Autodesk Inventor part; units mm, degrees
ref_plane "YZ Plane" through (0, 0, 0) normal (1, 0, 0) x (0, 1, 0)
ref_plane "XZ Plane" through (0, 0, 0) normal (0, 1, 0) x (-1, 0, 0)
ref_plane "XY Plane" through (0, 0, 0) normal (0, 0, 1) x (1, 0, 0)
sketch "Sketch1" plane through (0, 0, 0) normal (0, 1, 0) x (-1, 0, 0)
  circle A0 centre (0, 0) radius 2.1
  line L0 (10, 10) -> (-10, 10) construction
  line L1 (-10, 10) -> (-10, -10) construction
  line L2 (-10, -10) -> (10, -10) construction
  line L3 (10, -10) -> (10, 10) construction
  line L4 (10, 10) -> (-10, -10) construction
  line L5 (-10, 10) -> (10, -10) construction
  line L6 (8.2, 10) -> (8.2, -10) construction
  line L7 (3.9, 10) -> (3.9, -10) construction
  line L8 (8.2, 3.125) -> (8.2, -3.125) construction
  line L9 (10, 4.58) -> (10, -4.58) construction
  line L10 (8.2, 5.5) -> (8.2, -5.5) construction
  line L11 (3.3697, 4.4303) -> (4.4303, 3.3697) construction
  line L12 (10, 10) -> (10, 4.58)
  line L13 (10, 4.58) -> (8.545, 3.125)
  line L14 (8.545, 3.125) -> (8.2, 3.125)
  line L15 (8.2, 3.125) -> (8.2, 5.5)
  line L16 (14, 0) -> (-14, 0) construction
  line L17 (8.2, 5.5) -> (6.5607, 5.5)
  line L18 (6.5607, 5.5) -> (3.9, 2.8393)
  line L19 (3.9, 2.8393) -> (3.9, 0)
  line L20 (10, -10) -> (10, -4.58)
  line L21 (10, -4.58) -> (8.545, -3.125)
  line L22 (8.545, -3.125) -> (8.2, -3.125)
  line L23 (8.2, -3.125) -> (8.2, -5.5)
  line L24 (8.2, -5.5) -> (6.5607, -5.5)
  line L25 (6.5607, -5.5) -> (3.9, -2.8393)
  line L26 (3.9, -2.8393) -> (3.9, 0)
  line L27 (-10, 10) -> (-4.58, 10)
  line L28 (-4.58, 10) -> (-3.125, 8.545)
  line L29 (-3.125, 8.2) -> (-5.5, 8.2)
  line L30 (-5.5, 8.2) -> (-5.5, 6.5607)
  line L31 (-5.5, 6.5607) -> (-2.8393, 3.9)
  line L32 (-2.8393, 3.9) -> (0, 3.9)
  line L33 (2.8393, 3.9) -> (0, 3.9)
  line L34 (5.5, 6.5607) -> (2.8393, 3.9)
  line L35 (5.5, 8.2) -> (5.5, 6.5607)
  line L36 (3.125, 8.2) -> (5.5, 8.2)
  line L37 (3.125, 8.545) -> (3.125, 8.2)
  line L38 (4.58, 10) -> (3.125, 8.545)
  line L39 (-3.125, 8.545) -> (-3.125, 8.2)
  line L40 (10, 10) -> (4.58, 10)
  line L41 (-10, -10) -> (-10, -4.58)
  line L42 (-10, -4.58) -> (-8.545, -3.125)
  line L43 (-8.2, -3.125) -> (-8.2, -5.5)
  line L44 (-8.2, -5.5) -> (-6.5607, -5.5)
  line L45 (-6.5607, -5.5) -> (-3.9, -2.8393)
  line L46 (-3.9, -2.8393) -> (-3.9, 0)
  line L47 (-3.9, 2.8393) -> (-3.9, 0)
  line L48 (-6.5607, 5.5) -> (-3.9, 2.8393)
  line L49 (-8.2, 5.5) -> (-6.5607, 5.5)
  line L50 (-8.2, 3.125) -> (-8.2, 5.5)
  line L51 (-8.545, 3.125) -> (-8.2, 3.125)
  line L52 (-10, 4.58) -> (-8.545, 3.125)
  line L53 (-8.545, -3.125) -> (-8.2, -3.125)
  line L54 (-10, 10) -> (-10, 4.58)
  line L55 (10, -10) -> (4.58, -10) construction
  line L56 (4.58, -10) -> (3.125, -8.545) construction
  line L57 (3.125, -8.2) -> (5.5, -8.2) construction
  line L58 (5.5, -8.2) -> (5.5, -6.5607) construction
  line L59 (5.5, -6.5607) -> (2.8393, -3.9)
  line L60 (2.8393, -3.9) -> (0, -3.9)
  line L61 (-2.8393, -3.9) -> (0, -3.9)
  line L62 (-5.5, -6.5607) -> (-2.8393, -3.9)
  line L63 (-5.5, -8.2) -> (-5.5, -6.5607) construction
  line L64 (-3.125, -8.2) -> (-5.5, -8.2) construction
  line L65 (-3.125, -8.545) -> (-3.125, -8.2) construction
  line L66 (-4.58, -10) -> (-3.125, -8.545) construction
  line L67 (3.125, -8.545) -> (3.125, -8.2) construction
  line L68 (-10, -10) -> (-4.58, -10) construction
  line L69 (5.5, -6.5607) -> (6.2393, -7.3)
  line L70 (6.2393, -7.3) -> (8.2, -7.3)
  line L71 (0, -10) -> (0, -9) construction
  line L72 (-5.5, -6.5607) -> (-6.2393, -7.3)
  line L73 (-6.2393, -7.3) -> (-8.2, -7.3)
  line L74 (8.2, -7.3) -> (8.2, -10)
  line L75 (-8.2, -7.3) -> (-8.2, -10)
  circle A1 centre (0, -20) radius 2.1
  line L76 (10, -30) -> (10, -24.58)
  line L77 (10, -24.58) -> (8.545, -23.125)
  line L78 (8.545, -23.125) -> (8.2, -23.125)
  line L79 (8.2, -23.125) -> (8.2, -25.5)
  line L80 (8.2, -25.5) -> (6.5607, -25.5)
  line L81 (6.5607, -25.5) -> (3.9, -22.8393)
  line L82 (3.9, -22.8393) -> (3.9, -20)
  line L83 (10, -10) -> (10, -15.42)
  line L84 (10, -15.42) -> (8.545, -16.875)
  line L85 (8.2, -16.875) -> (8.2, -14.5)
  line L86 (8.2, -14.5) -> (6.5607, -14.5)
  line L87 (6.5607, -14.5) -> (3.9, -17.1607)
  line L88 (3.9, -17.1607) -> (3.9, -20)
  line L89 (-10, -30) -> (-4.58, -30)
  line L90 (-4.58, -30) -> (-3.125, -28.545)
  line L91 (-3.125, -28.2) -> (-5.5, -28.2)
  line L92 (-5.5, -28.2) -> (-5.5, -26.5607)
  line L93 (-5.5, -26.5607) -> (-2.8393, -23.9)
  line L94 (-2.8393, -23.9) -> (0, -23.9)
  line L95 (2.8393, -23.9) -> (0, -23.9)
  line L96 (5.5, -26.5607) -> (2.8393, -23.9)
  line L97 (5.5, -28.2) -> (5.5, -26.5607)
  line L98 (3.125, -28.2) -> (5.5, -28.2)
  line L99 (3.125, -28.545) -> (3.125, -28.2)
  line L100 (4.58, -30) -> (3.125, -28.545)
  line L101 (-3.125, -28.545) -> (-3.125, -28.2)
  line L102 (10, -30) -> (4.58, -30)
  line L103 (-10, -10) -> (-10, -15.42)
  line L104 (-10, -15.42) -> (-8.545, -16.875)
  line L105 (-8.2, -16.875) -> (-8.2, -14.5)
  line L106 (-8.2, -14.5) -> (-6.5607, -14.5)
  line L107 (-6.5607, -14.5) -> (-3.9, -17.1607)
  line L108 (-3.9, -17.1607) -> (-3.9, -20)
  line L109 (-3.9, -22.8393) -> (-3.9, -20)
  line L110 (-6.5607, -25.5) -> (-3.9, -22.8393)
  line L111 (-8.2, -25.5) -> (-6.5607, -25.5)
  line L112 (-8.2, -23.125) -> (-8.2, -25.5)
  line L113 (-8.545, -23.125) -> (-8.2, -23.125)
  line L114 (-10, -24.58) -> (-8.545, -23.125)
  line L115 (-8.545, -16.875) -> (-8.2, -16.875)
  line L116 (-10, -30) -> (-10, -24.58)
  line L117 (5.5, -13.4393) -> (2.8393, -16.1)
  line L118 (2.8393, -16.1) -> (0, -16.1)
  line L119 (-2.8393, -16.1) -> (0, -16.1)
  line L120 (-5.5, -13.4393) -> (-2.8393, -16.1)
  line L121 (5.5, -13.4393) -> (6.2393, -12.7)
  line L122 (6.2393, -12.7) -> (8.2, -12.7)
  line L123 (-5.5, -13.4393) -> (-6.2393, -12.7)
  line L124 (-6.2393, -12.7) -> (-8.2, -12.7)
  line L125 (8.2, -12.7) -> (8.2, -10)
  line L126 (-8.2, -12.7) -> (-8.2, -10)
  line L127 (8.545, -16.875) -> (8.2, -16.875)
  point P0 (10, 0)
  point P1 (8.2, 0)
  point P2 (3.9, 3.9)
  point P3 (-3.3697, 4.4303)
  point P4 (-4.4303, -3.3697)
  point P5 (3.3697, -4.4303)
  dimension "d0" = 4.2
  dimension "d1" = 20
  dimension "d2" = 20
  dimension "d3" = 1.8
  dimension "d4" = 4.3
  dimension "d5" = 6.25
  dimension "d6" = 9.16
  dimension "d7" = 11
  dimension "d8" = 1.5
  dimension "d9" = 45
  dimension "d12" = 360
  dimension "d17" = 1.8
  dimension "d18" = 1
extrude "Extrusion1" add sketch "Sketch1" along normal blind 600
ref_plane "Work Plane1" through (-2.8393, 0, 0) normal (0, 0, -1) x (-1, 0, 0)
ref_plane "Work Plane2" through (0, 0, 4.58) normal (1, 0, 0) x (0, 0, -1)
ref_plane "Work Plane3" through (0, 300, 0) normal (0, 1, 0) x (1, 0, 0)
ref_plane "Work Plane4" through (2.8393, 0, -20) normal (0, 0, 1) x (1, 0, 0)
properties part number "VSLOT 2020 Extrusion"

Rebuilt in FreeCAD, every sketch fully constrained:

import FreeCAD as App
import Part
import Sketcher
Q = App.Units.Quantity


def add_polygon(sketch, points):
    """Adds a closed chain of lines whose ends are joined by coincident constraints."""
    first, n = sketch.GeometryCount, len(points)
    for a, b in zip(points, points[1:] + points[:1]):
        sketch.addGeometry(Part.LineSegment(App.Vector(*a, 0), App.Vector(*b, 0)), False)
    for i in range(n):
        sketch.addConstraint(Sketcher.Constraint("Coincident", first + i, 2, first + (i + 1) % n, 1))

doc = App.newDocument("Part")
params = doc.addObject("Spreadsheet::Sheet", "Params")
for row, (alias, value) in enumerate([
    ("sketch1_diameter", "4.2 mm"),
    ("sketch1_height", "5.4 mm"),
    ("sketch1_width", "5.42 mm"),
    ("pad1_length", "600 mm"),
], start=1):
    params.set(f"A{row}", alias)
    params.set(f"B{row}", "=" + value)
    params.setAlias(f"B{row}", alias)

body = doc.addObject("PartDesign::Body", "Body")

# Sketch on XZ plane
sketch1 = doc.addObject("Sketcher::SketchObject", "Sketch")
body.addObject(sketch1)
sketch1.AttachmentSupport = (doc.XZ_Plane, [""])
sketch1.MapMode = "FlatFace"
add_polygon(sketch1, [(-10, 4.58), (-10, 10), (-4.58, 10), (-3.12, 8.54), (-3.12, 8.2), (-5.5, 8.2), (-5.5, 6.56), (-2.84, 3.9), (2.84, 3.9), (5.5, 6.56), (5.5, 8.2), (3.12, 8.2), (3.12, 8.54), (4.58, 10), (10, 10), (10, 4.58), (8.54, 3.12), (8.2, 3.12), (8.2, 5.5), (6.56, 5.5), (3.9, 2.84), (3.9, -2.84), (6.56, -5.5), (8.2, -5.5), (8.2, -3.12), (8.54, -3.12), (10, -4.58), (10, -15.42), (8.54, -16.88), (8.2, -16.88), (8.2, -14.5), (6.56, -14.5), (3.9, -17.16), (3.9, -22.84), (6.56, -25.5), (8.2, -25.5), (8.2, -23.12), (8.54, -23.12), (10, -24.58), (10, -30), (4.58, -30), (3.12, -28.55), (3.12, -28.2), (5.5, -28.2), (5.5, -26.56), (2.84, -23.9), (-2.84, -23.9), (-5.5, -26.56), (-5.5, -28.2), (-3.12, -28.2), (-3.12, -28.55), (-4.58, -30), (-10, -30), (-10, -24.58), (-8.54, -23.12), (-8.2, -23.12), (-8.2, -25.5), (-6.56, -25.5), (-3.9, -22.84), (-3.9, -17.16), (-6.56, -14.5), (-8.2, -14.5), (-8.2, -16.88), (-8.54, -16.88), (-10, -15.42), (-10, -4.58), (-8.54, -3.12), (-8.2, -3.12), (-8.2, -5.5), (-6.56, -5.5), (-3.9, -2.84), (-3.9, 2.84), (-6.56, 5.5), (-8.2, 5.5), (-8.2, 3.12), (-8.54, 3.12)])  # lines 0-75
sketch1.addGeometry(Part.Circle(App.Vector(0, -20, 0), App.Vector(0, 0, 1), 2.1), False)  # 76
add_polygon(sketch1, [(-2.84, -3.9), (-6.24, -7.3), (-8.2, -7.3), (-8.2, -12.7), (-6.24, -12.7), (-2.84, -16.1), (2.84, -16.1), (6.24, -12.7), (8.2, -12.7), (8.2, -7.3), (6.24, -7.3), (2.84, -3.9)])  # lines 77-88
sketch1.addGeometry(Part.Circle(App.Vector(0, 0, 0), App.Vector(0, 0, 1), 2.1), False)  # 89
sketch1.addConstraint([
    Sketcher.Constraint("Vertical", 0),
    Sketcher.Constraint("Horizontal", 1),
    Sketcher.Constraint("Vertical", 3),
    Sketcher.Constraint("Horizontal", 4),
    Sketcher.Constraint("Vertical", 5),
    Sketcher.Constraint("Horizontal", 7),
    Sketcher.Constraint("Vertical", 9),
    Sketcher.Constraint("Horizontal", 10),
    Sketcher.Constraint("Vertical", 11),
    Sketcher.Constraint("Horizontal", 13),
    Sketcher.Constraint("Vertical", 14),
    Sketcher.Constraint("Horizontal", 16),
    Sketcher.Constraint("Vertical", 17),
    Sketcher.Constraint("Horizontal", 18),
    Sketcher.Constraint("Vertical", 20),
    Sketcher.Constraint("Horizontal", 22),
    Sketcher.Constraint("Vertical", 23),
    Sketcher.Constraint("Horizontal", 24),
    Sketcher.Constraint("Vertical", 26),
    Sketcher.Constraint("Horizontal", 28),
    Sketcher.Constraint("Vertical", 29),
    Sketcher.Constraint("Horizontal", 30),
    Sketcher.Constraint("Vertical", 32),
    Sketcher.Constraint("Horizontal", 34),
    Sketcher.Constraint("Vertical", 35),
    Sketcher.Constraint("Horizontal", 36),
    Sketcher.Constraint("Vertical", 38),
    Sketcher.Constraint("Horizontal", 39),
    Sketcher.Constraint("Vertical", 41),
    Sketcher.Constraint("Horizontal", 42),
    Sketcher.Constraint("Vertical", 43),
    Sketcher.Constraint("Horizontal", 45),
    Sketcher.Constraint("Vertical", 47),
    Sketcher.Constraint("Horizontal", 48),
    Sketcher.Constraint("Vertical", 49),
    Sketcher.Constraint("Horizontal", 51),
    Sketcher.Constraint("Vertical", 52),
    Sketcher.Constraint("Horizontal", 54),
    Sketcher.Constraint("Vertical", 55),
    Sketcher.Constraint("Horizontal", 56),
    Sketcher.Constraint("Vertical", 58),
    Sketcher.Constraint("Horizontal", 60),
    Sketcher.Constraint("Vertical", 61),
    Sketcher.Constraint("Horizontal", 62),
    Sketcher.Constraint("Vertical", 64),
    Sketcher.Constraint("Horizontal", 66),
    Sketcher.Constraint("Vertical", 67),
    Sketcher.Constraint("Horizontal", 68),
    Sketcher.Constraint("Vertical", 70),
    Sketcher.Constraint("Horizontal", 72),
    Sketcher.Constraint("Vertical", 73),
    Sketcher.Constraint("Horizontal", 74),
    Sketcher.Constraint("Horizontal", 78),
    Sketcher.Constraint("Vertical", 79),
    Sketcher.Constraint("Horizontal", 80),
    Sketcher.Constraint("Horizontal", 82),
    Sketcher.Constraint("Horizontal", 84),
    Sketcher.Constraint("Vertical", 85),
    Sketcher.Constraint("Horizontal", 86),
    Sketcher.Constraint("Horizontal", 88),
    Sketcher.Constraint("Coincident", 89, 3, -1, 1),
    Sketcher.Constraint("Equal", 76, 89),
    Sketcher.Constraint("Symmetric", 14, 2, 64, 2, -1, 1),
    Sketcher.Constraint("Symmetric", 15, 2, 65, 2, -1, 1),
    Sketcher.Constraint("Symmetric", 17, 2, 67, 2, -1, 1),
    Sketcher.Constraint("Symmetric", 19, 2, 69, 2, -1, 1),
    Sketcher.Constraint("Symmetric", 21, 2, 71, 2, -1, 1),
    Sketcher.Constraint("Symmetric", 23, 2, 73, 2, -1, 1),
    Sketcher.Constraint("Symmetric", 25, 2, 75, 2, -1, 1),
    Sketcher.Constraint("Symmetric", 6, 2, 87, 2, -1, 1),
    Sketcher.Constraint("Symmetric", 5, 2, 8, 2, -2),
    Sketcher.Constraint("Symmetric", 3, 2, 10, 2, -2),
    Sketcher.Constraint("Symmetric", 1, 2, 12, 2, -2),
    Sketcher.Constraint("Symmetric", 43, 2, 46, 2, -2),
    Sketcher.Constraint("Symmetric", 41, 2, 48, 2, -2),
    Sketcher.Constraint("Symmetric", 39, 2, 50, 2, -2),
    Sketcher.Constraint("Symmetric", 37, 2, 52, 2, -2),
    Sketcher.Constraint("Symmetric", 36, 2, 53, 2, -2),
    Sketcher.Constraint("Symmetric", 34, 2, 55, 2, -2),
    Sketcher.Constraint("Symmetric", 32, 2, 57, 2, -2),
    Sketcher.Constraint("Symmetric", 30, 2, 59, 2, -2),
    Sketcher.Constraint("Symmetric", 28, 2, 61, 2, -2),
    Sketcher.Constraint("Symmetric", 26, 2, 63, 2, -2),
    Sketcher.Constraint("Symmetric", 24, 2, 65, 2, -2),
    Sketcher.Constraint("Symmetric", 22, 2, 67, 2, -2),
    Sketcher.Constraint("Symmetric", 80, 2, 83, 2, -2),
    Sketcher.Constraint("Symmetric", 78, 2, 85, 2, -2),
    Sketcher.Constraint("PointOnObject", 76, 3, -2),
    Sketcher.Constraint("Parallel", 2, 6),
    Sketcher.Constraint("Perpendicular", 6, 8),
    Sketcher.Constraint("Parallel", 8, 12),
    Sketcher.Constraint("Parallel", 12, 15),
    Sketcher.Constraint("Parallel", 15, 19),
    Sketcher.Constraint("Perpendicular", 19, 21),
    Sketcher.Constraint("Parallel", 21, 25),
    Sketcher.Constraint("Perpendicular", 25, 27),
    Sketcher.Constraint("Parallel", 27, 31),
    Sketcher.Constraint("Perpendicular", 31, 33),
    Sketcher.Constraint("Parallel", 33, 37),
    Sketcher.Constraint("Parallel", 37, 40),
    Sketcher.Constraint("Parallel", 40, 44),
    Sketcher.Constraint("Perpendicular", 44, 46),
    Sketcher.Constraint("Parallel", 46, 50),
    Sketcher.Constraint("Parallel", 50, 53),
    Sketcher.Constraint("Parallel", 53, 57),
    Sketcher.Constraint("Perpendicular", 57, 59),
    Sketcher.Constraint("Parallel", 59, 63),
    Sketcher.Constraint("Parallel", 65, 69),
    Sketcher.Constraint("Perpendicular", 69, 71),
    Sketcher.Constraint("Parallel", 71, 75),
    Sketcher.Constraint("Perpendicular", 75, 77),
    Sketcher.Constraint("Perpendicular", 77, 81),
    Sketcher.Constraint("Perpendicular", 81, 83),
    Sketcher.Constraint("Perpendicular", 83, 87),
    Sketcher.Constraint("Horizontal", 20, 2, 69, 2),
    Sketcher.Constraint("Vertical", 24, 2, 27, 2),
    Sketcher.Constraint("Vertical", 23, 2, 28, 2),
    Sketcher.Constraint("Vertical", 21, 2, 30, 2),
    Sketcher.Constraint("Vertical", 20, 2, 31, 2),
    Sketcher.Constraint("Vertical", 30, 2, 33, 2),
    Sketcher.Constraint("Vertical", 29, 2, 34, 2),
    Sketcher.Constraint("Vertical", 27, 2, 36, 2),
    Sketcher.Constraint("Vertical", 26, 2, 37, 2),
    Sketcher.Constraint("Vertical", 12, 2, 39, 2),
    Sketcher.Constraint("Vertical", 11, 2, 40, 2),
    Sketcher.Constraint("Vertical", 9, 2, 42, 2),
    Sketcher.Constraint("Vertical", 7, 2, 44, 2),
    Sketcher.Constraint("Vertical", 73, 2, 78, 2),
    Sketcher.Constraint("Vertical", 77, 2, 80, 2),
    Sketcher.Constraint("Vertical", 45, 2, 81, 2),
    Sketcher.Constraint("Vertical", 83, 2, 86, 2),
    Sketcher.Constraint("Equal", 51, 0),
    Sketcher.Constraint("Equal", 74, 3),
    Sketcher.Constraint("Equal", 72, 5),
    Sketcher.Constraint("Equal", 48, 17),
    Sketcher.Constraint("Equal", 88, 20),
    Sketcher.Constraint("Equal", 23, 29),
    Sketcher.Constraint("Equal", 20, 32),
    Sketcher.Constraint("Equal", 29, 35),
    Sketcher.Constraint("Equal", 14, 38),
    Sketcher.Constraint("Equal", 11, 41),
    Sketcher.Constraint("Equal", 9, 43),
    Sketcher.Constraint("Equal", 12, 15),
    Sketcher.Constraint("Equal", 8, 19),
    Sketcher.Constraint("Diameter", 76, Q("4.2 mm")),
    Sketcher.Constraint("DistanceY", 76, 3, -1, 1, Q("20 mm")),
    Sketcher.Constraint("DistanceY", 79, 2, 79, 1, Q("5.4 mm")),
    Sketcher.Constraint("DistanceX", 0, 2, -1, 1, Q("10 mm")),
    Sketcher.Constraint("DistanceY", 38, 2, -1, 1, Q("30 mm")),
    Sketcher.Constraint("DistanceX", 1, 1, 1, 2, Q("5.42 mm")),
    Sketcher.Constraint("DistanceY", -1, 1, 3, 2, Q("8.2 mm")),
    Sketcher.Constraint("DistanceX", 4, 2, -1, 1, Q("5.5 mm")),
    Sketcher.Constraint("DistanceY", -1, 1, 6, 2, Q("3.9 mm")),
    Sketcher.Constraint("DistanceY", 77, 2, -1, 1, Q("7.3 mm")),
    Sketcher.Constraint("DistanceX", 4, 2, 4, 1, Q("2.375 mm")),
    Sketcher.Constraint("DistanceX", 7, 1, 7, 2, Q("5.6786 mm")),
])
sketch1.setExpression("Constraints[232]", "Params.sketch1_diameter")
sketch1.setExpression("Constraints[234]", "Params.sketch1_height")
sketch1.setExpression("Constraints[237]", "Params.sketch1_width")
pad1 = doc.addObject("PartDesign::Pad", "Pad")
body.addObject(pad1)
pad1.Profile = sketch1
pad1.setExpression("Length", "Params.pad1_length")
pad1.Reversed = True

doc.recompute()
